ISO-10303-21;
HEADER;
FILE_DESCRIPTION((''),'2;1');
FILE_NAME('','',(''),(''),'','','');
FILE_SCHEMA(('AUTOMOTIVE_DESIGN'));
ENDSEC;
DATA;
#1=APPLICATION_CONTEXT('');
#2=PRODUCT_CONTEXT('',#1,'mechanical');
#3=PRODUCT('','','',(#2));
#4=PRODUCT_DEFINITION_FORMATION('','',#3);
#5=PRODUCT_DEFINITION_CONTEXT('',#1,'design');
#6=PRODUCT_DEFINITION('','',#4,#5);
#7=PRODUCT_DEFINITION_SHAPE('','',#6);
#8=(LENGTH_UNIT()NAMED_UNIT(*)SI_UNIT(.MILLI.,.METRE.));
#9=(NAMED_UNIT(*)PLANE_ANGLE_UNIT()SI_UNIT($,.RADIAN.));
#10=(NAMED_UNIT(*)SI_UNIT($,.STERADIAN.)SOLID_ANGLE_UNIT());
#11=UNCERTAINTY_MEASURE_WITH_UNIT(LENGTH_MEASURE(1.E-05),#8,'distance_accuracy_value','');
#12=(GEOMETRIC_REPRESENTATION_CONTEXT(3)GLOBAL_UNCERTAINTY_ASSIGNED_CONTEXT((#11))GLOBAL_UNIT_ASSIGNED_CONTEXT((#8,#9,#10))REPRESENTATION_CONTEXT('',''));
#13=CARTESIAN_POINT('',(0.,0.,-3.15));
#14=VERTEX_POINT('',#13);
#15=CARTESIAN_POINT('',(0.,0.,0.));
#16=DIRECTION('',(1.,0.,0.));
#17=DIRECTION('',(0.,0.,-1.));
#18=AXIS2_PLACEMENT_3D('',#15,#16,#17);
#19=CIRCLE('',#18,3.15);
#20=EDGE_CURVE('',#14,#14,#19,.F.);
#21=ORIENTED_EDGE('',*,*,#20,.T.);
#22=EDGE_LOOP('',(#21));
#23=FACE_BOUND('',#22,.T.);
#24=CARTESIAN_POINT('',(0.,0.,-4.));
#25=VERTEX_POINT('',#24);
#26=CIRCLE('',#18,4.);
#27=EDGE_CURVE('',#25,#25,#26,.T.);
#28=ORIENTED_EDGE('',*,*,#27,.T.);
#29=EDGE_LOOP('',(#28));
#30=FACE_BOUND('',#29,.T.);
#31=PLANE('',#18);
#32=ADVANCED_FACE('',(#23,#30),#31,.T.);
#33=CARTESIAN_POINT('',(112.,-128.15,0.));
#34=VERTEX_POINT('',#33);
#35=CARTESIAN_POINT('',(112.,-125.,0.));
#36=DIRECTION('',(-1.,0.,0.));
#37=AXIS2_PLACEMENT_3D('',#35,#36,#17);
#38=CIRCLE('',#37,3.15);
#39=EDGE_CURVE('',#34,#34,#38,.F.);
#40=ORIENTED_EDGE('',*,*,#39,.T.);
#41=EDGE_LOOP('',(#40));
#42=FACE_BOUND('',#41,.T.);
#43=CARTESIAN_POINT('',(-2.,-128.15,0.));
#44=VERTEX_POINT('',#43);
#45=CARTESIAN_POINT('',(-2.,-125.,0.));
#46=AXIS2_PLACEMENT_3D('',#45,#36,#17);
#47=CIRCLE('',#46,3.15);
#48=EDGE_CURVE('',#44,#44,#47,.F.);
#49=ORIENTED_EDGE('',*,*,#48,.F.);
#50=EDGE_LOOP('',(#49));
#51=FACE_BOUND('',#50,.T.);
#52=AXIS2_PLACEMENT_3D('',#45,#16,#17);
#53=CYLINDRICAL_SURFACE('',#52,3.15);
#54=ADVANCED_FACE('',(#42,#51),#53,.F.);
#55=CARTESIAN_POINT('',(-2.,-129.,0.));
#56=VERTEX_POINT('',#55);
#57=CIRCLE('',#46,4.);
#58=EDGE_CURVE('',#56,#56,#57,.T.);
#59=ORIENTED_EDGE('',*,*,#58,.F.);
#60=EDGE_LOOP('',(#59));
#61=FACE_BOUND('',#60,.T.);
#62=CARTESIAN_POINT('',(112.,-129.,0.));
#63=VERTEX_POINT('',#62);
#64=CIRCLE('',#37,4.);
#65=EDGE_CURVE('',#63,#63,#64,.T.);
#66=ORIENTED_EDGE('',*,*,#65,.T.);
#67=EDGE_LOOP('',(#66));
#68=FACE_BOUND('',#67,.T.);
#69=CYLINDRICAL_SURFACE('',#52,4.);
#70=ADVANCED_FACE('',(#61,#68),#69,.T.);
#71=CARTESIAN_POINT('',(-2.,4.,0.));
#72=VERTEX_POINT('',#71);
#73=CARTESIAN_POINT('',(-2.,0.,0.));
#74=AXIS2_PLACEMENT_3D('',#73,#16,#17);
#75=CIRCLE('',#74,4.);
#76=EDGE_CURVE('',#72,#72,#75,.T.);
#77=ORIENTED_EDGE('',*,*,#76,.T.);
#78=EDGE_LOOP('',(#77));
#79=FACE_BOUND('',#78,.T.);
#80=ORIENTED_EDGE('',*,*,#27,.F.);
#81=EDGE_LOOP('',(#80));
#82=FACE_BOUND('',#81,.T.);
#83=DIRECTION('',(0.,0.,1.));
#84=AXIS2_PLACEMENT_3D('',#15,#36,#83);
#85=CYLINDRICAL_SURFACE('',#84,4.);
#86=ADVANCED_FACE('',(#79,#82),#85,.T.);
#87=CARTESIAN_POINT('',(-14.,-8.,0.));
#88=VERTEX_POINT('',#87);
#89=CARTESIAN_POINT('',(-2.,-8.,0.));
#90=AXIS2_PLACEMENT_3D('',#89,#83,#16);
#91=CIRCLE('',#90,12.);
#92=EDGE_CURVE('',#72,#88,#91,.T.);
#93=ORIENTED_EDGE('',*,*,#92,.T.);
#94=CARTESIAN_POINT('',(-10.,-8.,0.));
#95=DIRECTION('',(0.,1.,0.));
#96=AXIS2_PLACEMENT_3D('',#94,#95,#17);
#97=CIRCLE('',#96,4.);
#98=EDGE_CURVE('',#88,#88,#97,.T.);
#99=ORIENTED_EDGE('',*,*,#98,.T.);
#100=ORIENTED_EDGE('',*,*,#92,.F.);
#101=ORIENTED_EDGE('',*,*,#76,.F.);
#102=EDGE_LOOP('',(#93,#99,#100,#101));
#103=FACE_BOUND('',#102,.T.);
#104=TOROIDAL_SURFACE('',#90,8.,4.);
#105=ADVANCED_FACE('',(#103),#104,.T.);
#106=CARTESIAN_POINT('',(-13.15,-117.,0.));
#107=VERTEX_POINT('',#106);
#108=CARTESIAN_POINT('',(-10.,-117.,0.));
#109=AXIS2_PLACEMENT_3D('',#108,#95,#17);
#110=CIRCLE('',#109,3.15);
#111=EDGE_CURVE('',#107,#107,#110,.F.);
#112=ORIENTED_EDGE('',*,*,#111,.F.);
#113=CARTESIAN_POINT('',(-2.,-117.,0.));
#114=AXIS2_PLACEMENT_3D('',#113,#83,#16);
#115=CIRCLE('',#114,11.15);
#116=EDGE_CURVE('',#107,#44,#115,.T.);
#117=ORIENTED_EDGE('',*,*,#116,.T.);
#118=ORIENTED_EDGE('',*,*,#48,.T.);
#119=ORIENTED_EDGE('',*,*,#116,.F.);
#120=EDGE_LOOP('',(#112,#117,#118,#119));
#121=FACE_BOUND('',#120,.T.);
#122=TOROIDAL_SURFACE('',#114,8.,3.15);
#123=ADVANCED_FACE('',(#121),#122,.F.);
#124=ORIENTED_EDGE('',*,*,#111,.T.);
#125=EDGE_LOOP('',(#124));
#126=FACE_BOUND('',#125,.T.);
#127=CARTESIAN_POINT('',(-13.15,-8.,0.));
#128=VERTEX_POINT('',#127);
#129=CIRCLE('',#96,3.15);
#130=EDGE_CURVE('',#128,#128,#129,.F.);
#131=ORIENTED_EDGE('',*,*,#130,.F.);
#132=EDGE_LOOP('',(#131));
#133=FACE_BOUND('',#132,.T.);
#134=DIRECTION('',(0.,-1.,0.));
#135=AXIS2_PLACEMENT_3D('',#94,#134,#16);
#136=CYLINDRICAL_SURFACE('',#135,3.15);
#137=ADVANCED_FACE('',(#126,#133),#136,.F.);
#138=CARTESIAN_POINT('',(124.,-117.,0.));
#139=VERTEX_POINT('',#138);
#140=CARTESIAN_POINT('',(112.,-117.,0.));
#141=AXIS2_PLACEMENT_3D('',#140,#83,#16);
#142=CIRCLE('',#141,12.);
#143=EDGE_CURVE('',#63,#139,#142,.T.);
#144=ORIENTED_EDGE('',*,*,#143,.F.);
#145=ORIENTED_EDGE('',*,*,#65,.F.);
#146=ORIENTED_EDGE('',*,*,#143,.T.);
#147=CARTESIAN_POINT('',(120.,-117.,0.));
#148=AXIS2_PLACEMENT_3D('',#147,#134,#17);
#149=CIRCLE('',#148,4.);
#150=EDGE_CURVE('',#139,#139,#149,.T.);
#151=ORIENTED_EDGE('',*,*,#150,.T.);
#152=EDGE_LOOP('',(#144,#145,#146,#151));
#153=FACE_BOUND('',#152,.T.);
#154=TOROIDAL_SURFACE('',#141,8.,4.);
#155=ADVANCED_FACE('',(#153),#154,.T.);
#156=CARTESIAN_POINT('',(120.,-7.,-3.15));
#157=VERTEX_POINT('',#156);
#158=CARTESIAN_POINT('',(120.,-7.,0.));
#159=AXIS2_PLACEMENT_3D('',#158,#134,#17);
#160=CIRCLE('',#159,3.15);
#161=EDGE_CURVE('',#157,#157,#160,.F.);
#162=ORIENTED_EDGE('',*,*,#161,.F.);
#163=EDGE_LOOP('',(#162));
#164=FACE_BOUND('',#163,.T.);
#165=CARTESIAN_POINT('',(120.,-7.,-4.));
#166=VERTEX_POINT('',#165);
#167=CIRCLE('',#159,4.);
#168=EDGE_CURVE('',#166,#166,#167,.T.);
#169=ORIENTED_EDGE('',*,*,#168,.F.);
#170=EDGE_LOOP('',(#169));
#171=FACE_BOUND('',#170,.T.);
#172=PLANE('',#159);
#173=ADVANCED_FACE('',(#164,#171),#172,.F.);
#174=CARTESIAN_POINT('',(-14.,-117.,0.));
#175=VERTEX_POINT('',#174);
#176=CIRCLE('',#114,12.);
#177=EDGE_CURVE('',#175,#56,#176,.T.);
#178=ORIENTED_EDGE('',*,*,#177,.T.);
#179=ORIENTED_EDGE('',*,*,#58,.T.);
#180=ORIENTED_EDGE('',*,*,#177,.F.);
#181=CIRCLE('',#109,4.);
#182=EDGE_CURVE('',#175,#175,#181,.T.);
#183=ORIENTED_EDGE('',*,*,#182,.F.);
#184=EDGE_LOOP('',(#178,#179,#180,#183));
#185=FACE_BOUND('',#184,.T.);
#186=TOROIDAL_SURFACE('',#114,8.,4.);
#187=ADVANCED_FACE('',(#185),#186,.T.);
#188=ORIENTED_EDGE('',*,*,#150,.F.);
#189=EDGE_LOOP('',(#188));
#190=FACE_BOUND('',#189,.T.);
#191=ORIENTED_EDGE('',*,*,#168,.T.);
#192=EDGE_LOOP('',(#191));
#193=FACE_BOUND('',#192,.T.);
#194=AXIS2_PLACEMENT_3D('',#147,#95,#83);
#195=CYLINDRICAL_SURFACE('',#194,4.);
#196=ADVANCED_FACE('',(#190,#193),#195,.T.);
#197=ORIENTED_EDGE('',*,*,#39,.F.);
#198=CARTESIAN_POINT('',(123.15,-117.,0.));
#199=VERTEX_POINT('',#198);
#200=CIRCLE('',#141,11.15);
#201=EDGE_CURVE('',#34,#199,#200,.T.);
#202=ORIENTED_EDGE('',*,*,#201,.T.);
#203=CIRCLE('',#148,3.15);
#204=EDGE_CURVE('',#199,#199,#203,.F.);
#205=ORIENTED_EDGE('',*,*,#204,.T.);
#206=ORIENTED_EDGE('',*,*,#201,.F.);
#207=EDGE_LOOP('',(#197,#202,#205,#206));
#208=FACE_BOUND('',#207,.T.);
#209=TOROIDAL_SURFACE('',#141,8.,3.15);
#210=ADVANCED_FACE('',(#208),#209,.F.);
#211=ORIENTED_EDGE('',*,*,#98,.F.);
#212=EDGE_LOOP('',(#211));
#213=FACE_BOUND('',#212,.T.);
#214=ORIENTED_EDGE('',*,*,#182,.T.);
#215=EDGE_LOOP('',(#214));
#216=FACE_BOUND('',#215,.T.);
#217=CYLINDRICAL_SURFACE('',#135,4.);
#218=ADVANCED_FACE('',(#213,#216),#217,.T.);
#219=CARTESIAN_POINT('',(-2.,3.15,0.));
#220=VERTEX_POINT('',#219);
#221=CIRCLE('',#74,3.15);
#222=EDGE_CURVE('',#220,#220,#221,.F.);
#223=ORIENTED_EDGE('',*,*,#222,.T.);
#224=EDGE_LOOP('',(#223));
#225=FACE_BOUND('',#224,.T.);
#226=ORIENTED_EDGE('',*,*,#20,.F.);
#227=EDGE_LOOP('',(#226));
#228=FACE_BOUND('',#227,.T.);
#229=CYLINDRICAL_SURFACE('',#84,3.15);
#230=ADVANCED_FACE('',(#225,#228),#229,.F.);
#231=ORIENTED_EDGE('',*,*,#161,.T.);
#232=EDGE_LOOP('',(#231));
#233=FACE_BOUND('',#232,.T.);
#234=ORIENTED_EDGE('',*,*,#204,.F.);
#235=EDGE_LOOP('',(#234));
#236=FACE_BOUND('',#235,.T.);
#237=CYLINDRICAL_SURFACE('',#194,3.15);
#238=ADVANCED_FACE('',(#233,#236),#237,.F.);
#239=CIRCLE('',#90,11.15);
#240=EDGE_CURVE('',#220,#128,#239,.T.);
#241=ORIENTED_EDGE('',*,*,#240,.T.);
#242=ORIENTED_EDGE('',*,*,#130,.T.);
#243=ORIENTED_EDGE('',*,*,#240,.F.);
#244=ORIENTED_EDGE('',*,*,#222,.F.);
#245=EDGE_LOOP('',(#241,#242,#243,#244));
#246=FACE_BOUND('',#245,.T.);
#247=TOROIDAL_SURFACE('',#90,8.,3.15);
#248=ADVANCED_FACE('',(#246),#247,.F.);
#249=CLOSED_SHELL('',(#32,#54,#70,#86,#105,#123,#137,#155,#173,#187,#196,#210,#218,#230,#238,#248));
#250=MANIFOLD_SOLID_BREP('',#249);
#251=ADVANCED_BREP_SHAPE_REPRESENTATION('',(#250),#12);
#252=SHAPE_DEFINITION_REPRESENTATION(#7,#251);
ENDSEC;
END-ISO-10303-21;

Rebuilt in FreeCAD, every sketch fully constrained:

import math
import FreeCAD as App
import Part
import Sketcher
from FreeCAD import Vector

doc = App.newDocument("Part")
body = doc.addObject("PartDesign::Body", "Body")

sketch1 = body.newObject("Sketcher::SketchObject", "Sketch")
sketch1.AttachmentSupport = (doc.getObject("YZ_Plane"), [""])
sketch1.MapMode = "FlatFace"
sketch1.addGeometry(Part.Circle(Vector(0, 0, 0), Vector(0, 0, 1), 4), False)
sketch1.addGeometry(Part.Circle(Vector(0, 0, 0), Vector(0, 0, 1), 3.15), False)
sketch1.addConstraint(Sketcher.Constraint("Coincident", 0, 3, -1, 1))
sketch1.addConstraint(Sketcher.Constraint("Coincident", 1, 3, -1, 1))
sketch1.addConstraint(Sketcher.Constraint("Diameter", 0, 8.0))
sketch1.addConstraint(Sketcher.Constraint("Diameter", 1, 6.3))

sketch2 = body.newObject("Sketcher::SketchObject", "Sketch001")
sketch2.AttachmentSupport = (doc.getObject("XY_Plane"), [""])
sketch2.MapMode = "FlatFace"
sketch2.addGeometry(Part.LineSegment(Vector(0, 0, 0), Vector(-2, 0, 0)), False)
sketch2.addGeometry(Part.ArcOfCircle(Part.Circle(Vector(-2, -8, 0), Vector(0, 0, 1), 8), math.radians(90), math.radians(180)), False)
sketch2.addGeometry(Part.LineSegment(Vector(-10, -8, 0), Vector(-10, -117, 0)), False)
sketch2.addGeometry(Part.ArcOfCircle(Part.Circle(Vector(-2, -117, 0), Vector(0, 0, 1), 8), math.radians(-180), math.radians(-90)), False)
sketch2.addGeometry(Part.LineSegment(Vector(-2, -125, 0), Vector(112, -125, 0)), False)
sketch2.addGeometry(Part.ArcOfCircle(Part.Circle(Vector(112, -117, 0), Vector(0, 0, 1), 8), math.radians(-90), math.radians(0)), False)
sketch2.addGeometry(Part.LineSegment(Vector(120, -117, 0), Vector(120, -7, 0)), False)
sketch2.addConstraint(Sketcher.Constraint("Tangent", 0, 2, 1, 1))
sketch2.addConstraint(Sketcher.Constraint("Tangent", 1, 2, 2, 1))
sketch2.addConstraint(Sketcher.Constraint("Tangent", 2, 2, 3, 1))
sketch2.addConstraint(Sketcher.Constraint("Tangent", 3, 2, 4, 1))
sketch2.addConstraint(Sketcher.Constraint("Tangent", 4, 2, 5, 1))
sketch2.addConstraint(Sketcher.Constraint("Tangent", 5, 2, 6, 1))
sketch2.addConstraint(Sketcher.Constraint("Horizontal", 0))
sketch2.addConstraint(Sketcher.Constraint("Vertical", 2))
sketch2.addConstraint(Sketcher.Constraint("Horizontal", 4))
sketch2.addConstraint(Sketcher.Constraint("Vertical", 6))
sketch2.addConstraint(Sketcher.Constraint("Coincident", 0, 1, -1, 1))
sketch2.addConstraint(Sketcher.Constraint("Equal", 1, 3))
sketch2.addConstraint(Sketcher.Constraint("Equal", 3, 5))
sketch2.addConstraint(Sketcher.Constraint("Radius", 1, 8.0))
sketch2.addConstraint(Sketcher.Constraint("DistanceX", 0, 2, 0, 1, 2.0))
sketch2.addConstraint(Sketcher.Constraint("DistanceX", 4, 1, 4, 2, 114.0))
sketch2.addConstraint(Sketcher.Constraint("DistanceY", 2, 2, 2, 1, 109.0))
sketch2.addConstraint(Sketcher.Constraint("DistanceY", 6, 1, 6, 2, 110.0))
doc.recompute()

additivepipe = body.newObject("PartDesign::AdditivePipe", "AdditivePipe")
additivepipe.Profile = sketch1
additivepipe.Spine = (sketch2, ["Edge1", "Edge2", "Edge3", "Edge4", "Edge5", "Edge6", "Edge7"])

doc.recompute()
